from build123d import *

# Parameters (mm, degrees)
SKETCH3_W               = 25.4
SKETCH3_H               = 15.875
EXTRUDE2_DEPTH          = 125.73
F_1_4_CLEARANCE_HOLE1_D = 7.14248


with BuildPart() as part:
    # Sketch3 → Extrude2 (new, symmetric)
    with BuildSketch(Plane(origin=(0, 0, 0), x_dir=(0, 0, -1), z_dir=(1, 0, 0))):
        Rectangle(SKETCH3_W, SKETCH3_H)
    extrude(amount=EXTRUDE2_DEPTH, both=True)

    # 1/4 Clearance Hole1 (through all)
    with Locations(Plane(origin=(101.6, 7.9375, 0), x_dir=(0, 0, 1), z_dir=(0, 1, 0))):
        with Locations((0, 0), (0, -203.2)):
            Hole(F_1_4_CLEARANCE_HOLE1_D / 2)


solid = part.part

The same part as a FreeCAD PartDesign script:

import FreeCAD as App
import Part
import Sketcher

V = App.Vector
Q = App.Units.Quantity

doc = App.newDocument("Part")
body = doc.addObject("PartDesign::Body", "Body")

# Sketch on YZ plane
sketch1 = doc.addObject("Sketcher::SketchObject", "Sketch")
body.addObject(sketch1)
sketch1.AttachmentSupport = (doc.YZ_Plane, [""])
sketch1.MapMode = "FlatFace"
sketch1.addGeometry(Part.LineSegment(V(8, 13, 0), V(-8, 13, 0)), False)
sketch1.addGeometry(Part.LineSegment(V(-8, 13, 0), V(-8, -13, 0)), False)
sketch1.addGeometry(Part.LineSegment(V(-8, -13, 0), V(8, -13, 0)), False)
sketch1.addGeometry(Part.LineSegment(V(8, -13, 0), V(8, 13, 0)), False)
sketch1.addConstraint(Sketcher.Constraint("Coincident", 0, 2, 1, 1))
sketch1.addConstraint(Sketcher.Constraint("Coincident", 1, 2, 2, 1))
sketch1.addConstraint(Sketcher.Constraint("Coincident", 2, 2, 3, 1))
sketch1.addConstraint(Sketcher.Constraint("Coincident", 3, 2, 0, 1))
sketch1.addConstraint(Sketcher.Constraint("Horizontal", 0))
sketch1.addConstraint(Sketcher.Constraint("Vertical", 1))
sketch1.addConstraint(Sketcher.Constraint("Horizontal", 2))
sketch1.addConstraint(Sketcher.Constraint("Vertical", 3))
sketch1.addConstraint(Sketcher.Constraint("Symmetric", 0, 2, 2, 2, -1, 1))
sketch1.addConstraint(Sketcher.Constraint("DistanceY", 1, 2, 1, 1, Q("1 in")))
sketch1.addConstraint(Sketcher.Constraint("DistanceX", 0, 2, 0, 1, Q("0.625 in")))
pad1 = doc.addObject("PartDesign::Pad", "Pad")
body.addObject(pad1)
pad1.Profile = sketch1
pad1.Length = Q("9.9 in")
pad1.Midplane = True

# Sketch on XZ plane
sketch2 = doc.addObject("Sketcher::SketchObject", "Sketch001")
body.addObject(sketch2)
sketch2.AttachmentSupport = (doc.XZ_Plane, [""])
sketch2.MapMode = "FlatFace"
sketch2.AttachmentOffset = App.Placement(V(0, 0, -0.3125 * 25.4), App.Rotation())
sketch2.addGeometry(Part.Circle(V(101.6, 0, 0), V(0, 0, 1), 3.6), False)
sketch2.addGeometry(Part.Circle(V(-101.6, 0, 0), V(0, 0, 1), 3.6), False)
sketch2.addConstraint(Sketcher.Constraint("Equal", 0, 1))
sketch2.addConstraint(Sketcher.Constraint("Symmetric", 0, 3, 1, 3, -1, 1))
sketch2.addConstraint(Sketcher.Constraint("PointOnObject", 0, 3, -1))
sketch2.addConstraint(Sketcher.Constraint("DistanceX", -1, 1, 0, 3, Q("4 in")))
sketch2.addConstraint(Sketcher.Constraint("Diameter", 0, Q("0.2812 in")))
doc.recompute()
hole = doc.addObject("PartDesign::Hole", "Hole")
body.addObject(hole)
hole.Profile = sketch2
hole.ThreadType = "None"
hole.Diameter = Q("0.2812 in")
hole.DepthType = "ThroughAll"
hole.Reversed = True

doc.recompute()
